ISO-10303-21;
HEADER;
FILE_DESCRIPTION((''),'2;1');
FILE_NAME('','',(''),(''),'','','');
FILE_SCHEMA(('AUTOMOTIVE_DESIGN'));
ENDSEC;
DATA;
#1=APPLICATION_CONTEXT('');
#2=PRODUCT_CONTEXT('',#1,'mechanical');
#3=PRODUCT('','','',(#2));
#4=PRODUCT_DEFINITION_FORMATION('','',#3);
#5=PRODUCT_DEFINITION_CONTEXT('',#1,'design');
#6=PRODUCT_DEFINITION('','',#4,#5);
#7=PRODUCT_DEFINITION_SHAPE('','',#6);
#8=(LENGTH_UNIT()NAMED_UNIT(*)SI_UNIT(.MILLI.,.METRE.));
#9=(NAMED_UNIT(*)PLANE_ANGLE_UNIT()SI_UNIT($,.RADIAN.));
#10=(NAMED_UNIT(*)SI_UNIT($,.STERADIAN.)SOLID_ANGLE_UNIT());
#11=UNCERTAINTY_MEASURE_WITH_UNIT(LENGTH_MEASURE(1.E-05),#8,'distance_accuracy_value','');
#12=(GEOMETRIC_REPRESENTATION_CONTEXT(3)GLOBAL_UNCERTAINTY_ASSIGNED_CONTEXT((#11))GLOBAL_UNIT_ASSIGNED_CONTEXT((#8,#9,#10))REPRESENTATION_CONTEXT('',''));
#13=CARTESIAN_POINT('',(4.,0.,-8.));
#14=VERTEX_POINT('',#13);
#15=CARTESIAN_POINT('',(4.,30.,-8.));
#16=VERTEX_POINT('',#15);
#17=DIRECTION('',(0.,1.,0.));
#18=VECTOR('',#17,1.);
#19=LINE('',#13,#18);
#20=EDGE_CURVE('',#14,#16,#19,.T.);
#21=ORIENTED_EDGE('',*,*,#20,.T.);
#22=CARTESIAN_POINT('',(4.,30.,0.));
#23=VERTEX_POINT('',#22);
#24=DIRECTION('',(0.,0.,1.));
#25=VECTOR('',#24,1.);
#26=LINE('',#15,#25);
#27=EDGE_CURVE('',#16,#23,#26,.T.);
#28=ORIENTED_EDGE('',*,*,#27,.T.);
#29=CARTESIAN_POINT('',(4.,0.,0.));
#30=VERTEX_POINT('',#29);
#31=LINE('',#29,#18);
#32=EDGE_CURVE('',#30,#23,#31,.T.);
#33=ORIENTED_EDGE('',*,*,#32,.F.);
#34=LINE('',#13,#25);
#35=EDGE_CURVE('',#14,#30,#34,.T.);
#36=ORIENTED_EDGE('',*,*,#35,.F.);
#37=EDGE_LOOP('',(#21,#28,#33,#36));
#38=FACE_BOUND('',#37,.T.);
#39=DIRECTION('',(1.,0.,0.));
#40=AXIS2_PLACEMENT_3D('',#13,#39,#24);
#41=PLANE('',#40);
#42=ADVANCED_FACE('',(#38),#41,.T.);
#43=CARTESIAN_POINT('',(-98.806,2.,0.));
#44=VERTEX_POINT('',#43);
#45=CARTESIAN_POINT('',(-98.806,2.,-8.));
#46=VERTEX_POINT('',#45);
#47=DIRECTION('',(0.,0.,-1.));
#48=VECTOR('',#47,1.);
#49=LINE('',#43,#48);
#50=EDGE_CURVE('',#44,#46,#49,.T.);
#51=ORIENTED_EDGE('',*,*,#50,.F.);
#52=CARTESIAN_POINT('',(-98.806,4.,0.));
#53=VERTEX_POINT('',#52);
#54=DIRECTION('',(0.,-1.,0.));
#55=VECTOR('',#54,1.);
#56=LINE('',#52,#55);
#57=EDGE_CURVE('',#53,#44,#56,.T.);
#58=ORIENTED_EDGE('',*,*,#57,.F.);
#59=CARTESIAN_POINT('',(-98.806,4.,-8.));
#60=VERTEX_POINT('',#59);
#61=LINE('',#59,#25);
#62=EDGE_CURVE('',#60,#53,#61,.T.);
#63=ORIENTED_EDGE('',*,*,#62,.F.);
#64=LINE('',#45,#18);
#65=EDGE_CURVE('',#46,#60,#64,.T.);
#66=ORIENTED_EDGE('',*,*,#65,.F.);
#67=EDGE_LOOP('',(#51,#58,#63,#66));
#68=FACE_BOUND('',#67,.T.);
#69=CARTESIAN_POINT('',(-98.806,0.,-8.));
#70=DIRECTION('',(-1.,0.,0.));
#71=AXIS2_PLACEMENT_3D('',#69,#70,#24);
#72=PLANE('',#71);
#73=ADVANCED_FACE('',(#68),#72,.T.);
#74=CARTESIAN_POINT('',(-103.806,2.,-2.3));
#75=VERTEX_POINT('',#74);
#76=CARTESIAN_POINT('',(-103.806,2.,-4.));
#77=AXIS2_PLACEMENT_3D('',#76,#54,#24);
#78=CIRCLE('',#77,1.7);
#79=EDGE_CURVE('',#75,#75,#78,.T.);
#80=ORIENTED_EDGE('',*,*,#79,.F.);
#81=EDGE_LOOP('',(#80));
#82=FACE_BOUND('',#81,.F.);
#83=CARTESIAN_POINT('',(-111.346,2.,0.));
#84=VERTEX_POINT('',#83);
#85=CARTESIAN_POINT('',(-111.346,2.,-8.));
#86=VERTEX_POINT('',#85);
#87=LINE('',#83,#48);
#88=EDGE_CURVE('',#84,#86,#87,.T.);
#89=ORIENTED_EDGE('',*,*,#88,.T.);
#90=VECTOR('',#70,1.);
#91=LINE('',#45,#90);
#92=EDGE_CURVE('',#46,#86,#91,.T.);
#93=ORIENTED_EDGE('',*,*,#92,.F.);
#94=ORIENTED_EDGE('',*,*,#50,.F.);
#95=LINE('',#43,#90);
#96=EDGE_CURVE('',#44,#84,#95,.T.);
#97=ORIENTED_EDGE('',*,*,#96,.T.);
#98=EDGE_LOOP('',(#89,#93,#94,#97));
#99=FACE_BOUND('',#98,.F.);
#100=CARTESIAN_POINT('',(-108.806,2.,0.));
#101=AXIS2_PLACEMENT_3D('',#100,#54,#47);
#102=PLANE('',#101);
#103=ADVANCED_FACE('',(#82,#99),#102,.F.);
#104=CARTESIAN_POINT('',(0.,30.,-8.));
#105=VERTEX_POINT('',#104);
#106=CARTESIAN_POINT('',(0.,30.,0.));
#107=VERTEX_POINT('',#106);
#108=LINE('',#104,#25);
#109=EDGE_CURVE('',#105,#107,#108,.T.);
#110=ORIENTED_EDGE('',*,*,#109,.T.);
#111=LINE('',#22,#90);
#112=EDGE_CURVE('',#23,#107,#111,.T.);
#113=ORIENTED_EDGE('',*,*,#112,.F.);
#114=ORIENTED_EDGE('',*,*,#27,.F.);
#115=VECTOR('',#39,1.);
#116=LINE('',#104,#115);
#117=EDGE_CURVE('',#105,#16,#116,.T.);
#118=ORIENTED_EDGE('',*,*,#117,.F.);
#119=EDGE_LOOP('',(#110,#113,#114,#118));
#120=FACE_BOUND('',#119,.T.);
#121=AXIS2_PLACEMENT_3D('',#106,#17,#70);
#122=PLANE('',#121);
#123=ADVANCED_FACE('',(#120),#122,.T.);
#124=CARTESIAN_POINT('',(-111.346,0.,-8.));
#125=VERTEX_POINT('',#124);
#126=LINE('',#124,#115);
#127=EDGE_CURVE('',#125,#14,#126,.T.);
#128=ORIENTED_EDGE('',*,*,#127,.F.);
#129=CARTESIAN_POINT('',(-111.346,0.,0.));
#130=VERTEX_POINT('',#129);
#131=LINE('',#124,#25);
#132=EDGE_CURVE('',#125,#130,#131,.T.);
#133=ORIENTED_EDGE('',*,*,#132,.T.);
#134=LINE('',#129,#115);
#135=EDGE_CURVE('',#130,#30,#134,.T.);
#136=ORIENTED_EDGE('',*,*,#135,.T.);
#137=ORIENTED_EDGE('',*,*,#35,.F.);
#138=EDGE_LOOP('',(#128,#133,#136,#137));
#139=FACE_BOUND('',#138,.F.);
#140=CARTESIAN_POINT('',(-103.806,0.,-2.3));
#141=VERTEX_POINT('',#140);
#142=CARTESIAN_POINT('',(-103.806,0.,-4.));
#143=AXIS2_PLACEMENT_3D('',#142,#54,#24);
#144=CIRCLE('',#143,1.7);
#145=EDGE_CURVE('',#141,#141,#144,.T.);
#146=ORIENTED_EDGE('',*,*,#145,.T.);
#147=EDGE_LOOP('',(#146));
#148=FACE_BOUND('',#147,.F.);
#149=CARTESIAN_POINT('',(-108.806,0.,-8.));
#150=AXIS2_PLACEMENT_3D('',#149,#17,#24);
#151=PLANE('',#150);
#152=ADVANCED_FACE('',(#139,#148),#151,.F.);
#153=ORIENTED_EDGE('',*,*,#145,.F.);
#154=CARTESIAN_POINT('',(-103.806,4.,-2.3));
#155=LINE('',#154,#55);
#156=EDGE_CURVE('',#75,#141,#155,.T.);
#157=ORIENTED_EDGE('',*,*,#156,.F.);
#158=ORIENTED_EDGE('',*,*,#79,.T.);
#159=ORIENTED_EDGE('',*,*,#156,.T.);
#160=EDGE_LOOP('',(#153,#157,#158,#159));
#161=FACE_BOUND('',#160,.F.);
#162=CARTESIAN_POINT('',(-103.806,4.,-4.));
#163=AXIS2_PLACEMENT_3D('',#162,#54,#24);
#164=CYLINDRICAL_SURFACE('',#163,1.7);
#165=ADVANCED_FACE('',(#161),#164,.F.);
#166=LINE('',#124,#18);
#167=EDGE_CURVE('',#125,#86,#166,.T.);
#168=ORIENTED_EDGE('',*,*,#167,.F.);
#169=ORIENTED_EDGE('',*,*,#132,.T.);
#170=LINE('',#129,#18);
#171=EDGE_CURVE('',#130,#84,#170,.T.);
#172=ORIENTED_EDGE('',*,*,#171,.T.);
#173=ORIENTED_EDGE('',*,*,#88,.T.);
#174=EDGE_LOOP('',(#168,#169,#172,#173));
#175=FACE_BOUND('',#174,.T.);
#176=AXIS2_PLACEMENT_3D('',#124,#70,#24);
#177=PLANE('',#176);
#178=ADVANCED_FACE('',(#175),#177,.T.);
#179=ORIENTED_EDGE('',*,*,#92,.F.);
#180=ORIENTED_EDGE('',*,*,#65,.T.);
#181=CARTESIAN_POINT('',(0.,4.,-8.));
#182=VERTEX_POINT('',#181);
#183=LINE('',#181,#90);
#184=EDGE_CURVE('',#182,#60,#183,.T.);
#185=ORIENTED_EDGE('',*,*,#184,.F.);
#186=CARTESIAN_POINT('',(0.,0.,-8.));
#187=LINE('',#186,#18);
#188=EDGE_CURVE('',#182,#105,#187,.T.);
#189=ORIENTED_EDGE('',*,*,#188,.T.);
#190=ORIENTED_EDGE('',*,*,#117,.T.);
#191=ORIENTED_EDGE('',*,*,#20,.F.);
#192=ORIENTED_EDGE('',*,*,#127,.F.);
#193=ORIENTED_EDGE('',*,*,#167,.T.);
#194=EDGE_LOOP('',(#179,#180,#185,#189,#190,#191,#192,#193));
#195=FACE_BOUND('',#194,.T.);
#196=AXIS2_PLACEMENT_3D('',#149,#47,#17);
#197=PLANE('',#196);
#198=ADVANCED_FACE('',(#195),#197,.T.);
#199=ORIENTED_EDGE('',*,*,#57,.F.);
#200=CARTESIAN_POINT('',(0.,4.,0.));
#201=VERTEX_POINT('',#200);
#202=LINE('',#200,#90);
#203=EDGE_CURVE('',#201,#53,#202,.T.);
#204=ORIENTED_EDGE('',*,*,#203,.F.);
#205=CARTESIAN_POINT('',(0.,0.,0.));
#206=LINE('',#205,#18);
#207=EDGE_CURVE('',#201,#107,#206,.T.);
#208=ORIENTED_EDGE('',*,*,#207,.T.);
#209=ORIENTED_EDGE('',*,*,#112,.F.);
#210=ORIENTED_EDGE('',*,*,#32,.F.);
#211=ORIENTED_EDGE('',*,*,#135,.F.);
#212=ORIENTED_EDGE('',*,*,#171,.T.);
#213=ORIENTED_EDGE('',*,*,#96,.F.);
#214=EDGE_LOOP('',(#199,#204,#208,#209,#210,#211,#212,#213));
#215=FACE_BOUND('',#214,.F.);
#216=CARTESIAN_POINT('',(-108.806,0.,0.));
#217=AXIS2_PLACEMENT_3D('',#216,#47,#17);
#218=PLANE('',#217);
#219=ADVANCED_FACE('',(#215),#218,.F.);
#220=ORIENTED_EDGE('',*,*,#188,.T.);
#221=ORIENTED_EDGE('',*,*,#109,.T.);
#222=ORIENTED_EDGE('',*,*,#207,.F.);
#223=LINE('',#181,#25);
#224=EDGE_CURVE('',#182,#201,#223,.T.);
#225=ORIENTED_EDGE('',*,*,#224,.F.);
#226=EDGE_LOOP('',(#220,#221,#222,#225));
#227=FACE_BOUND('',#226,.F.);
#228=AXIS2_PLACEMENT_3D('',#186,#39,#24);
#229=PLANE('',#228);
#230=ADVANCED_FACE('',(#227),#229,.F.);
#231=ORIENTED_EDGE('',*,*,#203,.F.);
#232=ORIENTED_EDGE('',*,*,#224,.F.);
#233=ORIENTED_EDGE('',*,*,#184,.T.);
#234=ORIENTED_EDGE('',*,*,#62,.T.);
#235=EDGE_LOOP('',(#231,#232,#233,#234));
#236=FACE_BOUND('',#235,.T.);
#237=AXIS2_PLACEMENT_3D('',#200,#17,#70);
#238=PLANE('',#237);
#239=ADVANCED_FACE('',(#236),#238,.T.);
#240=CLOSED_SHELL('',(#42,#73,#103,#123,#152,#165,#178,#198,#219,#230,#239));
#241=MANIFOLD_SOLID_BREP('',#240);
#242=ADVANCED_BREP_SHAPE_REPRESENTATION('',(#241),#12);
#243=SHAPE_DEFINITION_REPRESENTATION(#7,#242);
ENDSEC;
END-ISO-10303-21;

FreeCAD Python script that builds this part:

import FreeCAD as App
import Part
import Sketcher

V = App.Vector


def add_polygon(sketch, points):
    """Adds a closed chain of lines whose ends are joined by coincident constraints."""
    first, n = sketch.GeometryCount, len(points)
    for a, b in zip(points, points[1:] + points[:1]):
        sketch.addGeometry(Part.LineSegment(App.Vector(*a, 0), App.Vector(*b, 0)), False)
    for i in range(n):
        sketch.addConstraint(Sketcher.Constraint("Coincident", first + i, 2, first + (i + 1) % n, 1))

doc = App.newDocument("Part")
body = doc.addObject("PartDesign::Body", "Body")

sketch1 = doc.addObject("Sketcher::SketchObject", "Sketch")
body.addObject(sketch1)
sketch1.AttachmentSupport = (doc.XZ_Plane, [""])
sketch1.MapMode = "FlatFace"
add_polygon(sketch1, [(0, -8), (0, 0), (4, 0), (4, -8)])
sketch1.addConstraint([
    Sketcher.Constraint("Vertical", 0),
    Sketcher.Constraint("Horizontal", 1),
    Sketcher.Constraint("Vertical", 2),
    Sketcher.Constraint("Horizontal", 3),
    Sketcher.Constraint("Coincident", 0, 2, -1, 1),
    Sketcher.Constraint("DistanceX", 1, 1, 1, 2, 4.0),
    Sketcher.Constraint("DistanceY", 0, 1, 0, 2, 8.0),
])
pad1 = doc.addObject("PartDesign::Pad", "Pad")
body.addObject(pad1)
pad1.Profile = sketch1
pad1.Length = 30
pad1.Reversed = True

sketch2 = doc.addObject("Sketcher::SketchObject", "Sketch001")
body.addObject(sketch2)
sketch2.AttachmentSupport = (doc.XZ_Plane, [""])
sketch2.MapMode = "FlatFace"
add_polygon(sketch2, [(0, 0), (0, -8), (-109, -8), (-109, 0)])
sketch2.addConstraint([
    Sketcher.Constraint("Vertical", 0),
    Sketcher.Constraint("Horizontal", 1),
    Sketcher.Constraint("Vertical", 2),
    Sketcher.Constraint("Horizontal", 3),
    Sketcher.Constraint("Coincident", 3, 2, -1, 1),
    Sketcher.Constraint("DistanceY", 0, 2, 0, 1, 8.0),
    Sketcher.Constraint("DistanceX", 1, 2, 1, 1, 108.806),
])
pad2 = doc.addObject("PartDesign::Pad", "Pad001")
body.addObject(pad2)
pad2.Profile = sketch2
pad2.Length = 4
pad2.Reversed = True

sketch3 = doc.addObject("Sketcher::SketchObject", "Sketch002")
body.addObject(sketch3)
sketch3.AttachmentSupport = (doc.XZ_Plane, [""])
sketch3.MapMode = "FlatFace"
sketch3.AttachmentOffset = App.Placement(V(0, 0, -4), App.Rotation())
sketch3.addGeometry(Part.Circle(V(-103.8, -4, 0), V(0, 0, 1), 1.7), False)
sketch3.addConstraint([
    Sketcher.Constraint("Diameter", 0, 3.4),
    Sketcher.Constraint("DistanceY", 0, 3, -1, 1, 4.0),
    Sketcher.Constraint("DistanceX", 0, 3, -1, 1, 103.806),
])
doc.recompute()
hole = doc.addObject("PartDesign::Hole", "Hole")
body.addObject(hole)
hole.Profile = sketch3
hole.ThreadType = "None"
hole.Diameter = 3.4
hole.DepthType = "ThroughAll"
hole.Reversed = True

sketch4 = doc.addObject("Sketcher::SketchObject", "Sketch003")
body.addObject(sketch4)
sketch4.AttachmentSupport = (doc.YZ_Plane, [""])
sketch4.MapMode = "FlatFace"
sketch4.AttachmentOffset = App.Placement(V(0, 0, -108.806), App.Rotation())
add_polygon(sketch4, [(4, 0), (4, -8), (2, -8), (2, 0)])
sketch4.addConstraint([
    Sketcher.Constraint("Vertical", 0),
    Sketcher.Constraint("Horizontal", 1),
    Sketcher.Constraint("Vertical", 2),
    Sketcher.Constraint("Horizontal", 3),
    Sketcher.Constraint("PointOnObject", 2, 2, -1),
    Sketcher.Constraint("DistanceX", 1, 2, 1, 1, 2.0),
    Sketcher.Constraint("DistanceY", 0, 2, 0, 1, 8.0),
    Sketcher.Constraint("DistanceX", -1, 1, 1, 2, 2.0),
])
pocket1 = doc.addObject("PartDesign::Pocket", "Pocket")
body.addObject(pocket1)
pocket1.Profile = sketch4
pocket1.Length = 10
pocket1.Reversed = True

sketch5 = doc.addObject("Sketcher::SketchObject", "Sketch004")
body.addObject(sketch5)
sketch5.AttachmentSupport = (doc.YZ_Plane, [""])
sketch5.MapMode = "FlatFace"
sketch5.AttachmentOffset = App.Placement(V(0, 0, -108.806), App.Rotation())
add_polygon(sketch5, [(0, 0), (2, 0), (2, -8), (0, -8)])
sketch5.addConstraint([
    Sketcher.Constraint("Horizontal", 0),
    Sketcher.Constraint("Vertical", 1),
    Sketcher.Constraint("Horizontal", 2),
    Sketcher.Constraint("Vertical", 3),
    Sketcher.Constraint("Coincident", 3, 2, -1, 1),
    Sketcher.Constraint("DistanceX", 0, 1, 0, 2, 2.0),
    Sketcher.Constraint("DistanceY", 1, 2, 1, 1, 8.0),
])
pad3 = doc.addObject("PartDesign::Pad", "Pad002")
body.addObject(pad3)
pad3.Profile = sketch5
pad3.Length = 2.54
pad3.Reversed = True

doc.recompute()
